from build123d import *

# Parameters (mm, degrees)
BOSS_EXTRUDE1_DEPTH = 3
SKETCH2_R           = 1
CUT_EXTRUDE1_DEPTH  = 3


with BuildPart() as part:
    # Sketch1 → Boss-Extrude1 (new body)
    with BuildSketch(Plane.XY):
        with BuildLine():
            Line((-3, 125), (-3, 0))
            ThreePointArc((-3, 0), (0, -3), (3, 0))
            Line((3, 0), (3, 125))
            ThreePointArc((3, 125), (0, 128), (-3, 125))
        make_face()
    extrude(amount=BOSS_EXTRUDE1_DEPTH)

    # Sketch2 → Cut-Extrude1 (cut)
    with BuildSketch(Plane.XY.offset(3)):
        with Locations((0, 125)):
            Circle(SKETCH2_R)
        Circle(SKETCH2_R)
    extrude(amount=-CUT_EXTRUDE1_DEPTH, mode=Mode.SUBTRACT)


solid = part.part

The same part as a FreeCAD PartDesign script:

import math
import FreeCAD as App
import Part
import Sketcher
from FreeCAD import Vector

doc = App.newDocument("Part")
params = doc.addObject("Spreadsheet::Sheet", "Params")
for row, (alias, value) in enumerate([
    ("sketch1_radius", "3 mm"),
    ("sketch1_height", "125 mm"),
    ("pad1_length", "3 mm"),
    ("sketch2_diameter", "2 mm"),
    ("pocket1_length", "3 mm"),
], start=1):
    params.set(f"A{row}", alias)
    params.set(f"B{row}", "=" + value)
    params.setAlias(f"B{row}", alias)

body = doc.addObject("PartDesign::Body", "Body")

sketch1 = body.newObject("Sketcher::SketchObject", "Sketch")
sketch1.AttachmentSupport = (doc.getObject("XY_Plane"), [""])
sketch1.MapMode = "FlatFace"
sketch1.addGeometry(Part.LineSegment(Vector(-3, 125, 0), Vector(-3, 0, 0)), False)
sketch1.addGeometry(Part.ArcOfCircle(Part.Circle(Vector(0, 0, 0), Vector(0, 0, 1), 3), math.radians(180), math.radians(360)), False)
sketch1.addGeometry(Part.LineSegment(Vector(3, 0, 0), Vector(3, 125, 0)), False)
sketch1.addGeometry(Part.ArcOfCircle(Part.Circle(Vector(0, 125, 0), Vector(0, 0, 1), 3), math.radians(0), math.radians(180)), False)
sketch1.addConstraint(Sketcher.Constraint("Tangent", 0, 2, 1, 1))
sketch1.addConstraint(Sketcher.Constraint("Tangent", 1, 2, 2, 1))
sketch1.addConstraint(Sketcher.Constraint("Tangent", 2, 2, 3, 1))
sketch1.addConstraint(Sketcher.Constraint("Tangent", 3, 2, 0, 1))
sketch1.addConstraint(Sketcher.Constraint("Vertical", 0))
sketch1.addConstraint(Sketcher.Constraint("Vertical", 2))
sketch1.addConstraint(Sketcher.Constraint("Coincident", 1, 3, -1, 1))
sketch1.addConstraint(Sketcher.Constraint("Radius", 1, 3.0))
sketch1.addConstraint(Sketcher.Constraint("DistanceY", 0, 2, 0, 1, 125.0))
sketch1.setExpression("Constraints[7]", "Params.sketch1_radius")
sketch1.setExpression("Constraints[8]", "Params.sketch1_height")
pad1 = body.newObject("PartDesign::Pad", "Pad")
pad1.Profile = sketch1
pad1.setExpression("Length", "Params.pad1_length")

sketch2 = body.newObject("Sketcher::SketchObject", "Sketch001")
sketch2.AttachmentSupport = (doc.getObject("XY_Plane"), [""])
sketch2.MapMode = "FlatFace"
sketch2.AttachmentOffset = App.Placement(Vector(0, 0, 3), App.Rotation())
sketch2.addGeometry(Part.Circle(Vector(0, 125, 0), Vector(0, 0, 1), 1), False)
sketch2.addGeometry(Part.Circle(Vector(0, 0, 0), Vector(0, 0, 1), 1), False)
sketch2.addConstraint(Sketcher.Constraint("Coincident", 1, 3, -1, 1))
sketch2.addConstraint(Sketcher.Constraint("Equal", 0, 1))
sketch2.addConstraint(Sketcher.Constraint("PointOnObject", 0, 3, -2))
sketch2.addConstraint(Sketcher.Constraint("Diameter", 0, 2.0))
sketch2.addConstraint(Sketcher.Constraint("DistanceY", -1, 1, 0, 3, 125.0))
sketch2.setExpression("Constraints[3]", "Params.sketch2_diameter")
pocket1 = body.newObject("PartDesign::Pocket", "Pocket")
pocket1.Profile = sketch2
pocket1.setExpression("Length", "Params.pocket1_length")

doc.recompute()
